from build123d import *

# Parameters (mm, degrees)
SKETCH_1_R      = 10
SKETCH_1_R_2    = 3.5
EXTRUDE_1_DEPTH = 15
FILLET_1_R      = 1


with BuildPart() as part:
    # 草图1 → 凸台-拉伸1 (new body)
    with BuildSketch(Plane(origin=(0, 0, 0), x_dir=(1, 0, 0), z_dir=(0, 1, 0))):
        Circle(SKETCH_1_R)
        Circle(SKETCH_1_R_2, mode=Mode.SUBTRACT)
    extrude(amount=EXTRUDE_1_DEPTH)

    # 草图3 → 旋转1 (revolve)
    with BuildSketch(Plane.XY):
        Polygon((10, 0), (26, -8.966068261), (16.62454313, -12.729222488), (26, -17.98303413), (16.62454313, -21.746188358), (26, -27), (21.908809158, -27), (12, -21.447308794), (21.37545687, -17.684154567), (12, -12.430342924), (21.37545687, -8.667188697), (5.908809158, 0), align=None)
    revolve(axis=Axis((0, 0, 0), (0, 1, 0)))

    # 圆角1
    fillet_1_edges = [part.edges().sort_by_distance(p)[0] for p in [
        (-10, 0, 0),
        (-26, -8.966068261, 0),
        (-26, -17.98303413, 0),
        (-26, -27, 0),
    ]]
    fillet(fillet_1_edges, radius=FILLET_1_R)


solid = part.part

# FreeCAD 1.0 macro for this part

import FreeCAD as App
import Part
import Sketcher


def edges_at(feature, points):
    """Names of the edges that pass closest to the given points."""
    edges = feature.Shape.Edges
    near = lambda p: min(range(len(edges)), key=lambda i: edges[i].distToShape(Part.Vertex(*p))[0])
    return sorted({f"Edge{near(p) + 1}" for p in points})


def add_polygon(sketch, points):
    """Adds a closed chain of lines whose ends are joined by coincident constraints."""
    first, n = sketch.GeometryCount, len(points)
    for a, b in zip(points, points[1:] + points[:1]):
        sketch.addGeometry(Part.LineSegment(App.Vector(*a, 0), App.Vector(*b, 0)), False)
    for i in range(n):
        sketch.addConstraint(Sketcher.Constraint("Coincident", first + i, 2, first + (i + 1) % n, 1))

doc = App.newDocument("Part")
params = doc.addObject("Spreadsheet::Sheet", "Params")
for row, (alias, value) in enumerate([
    ("sketch1_diameter", "20 mm"),
    ("sketch1_diameter2", "7 mm"),
    ("pad1_length", "15 mm"),
    ("revolution_angle", "360 deg"),
    ("fillet_radius", "1 mm"),
], start=1):
    params.set(f"A{row}", alias)
    params.set(f"B{row}", "=" + value)
    params.setAlias(f"B{row}", alias)

body = doc.addObject("PartDesign::Body", "Body")

sketch1 = body.newObject("Sketcher::SketchObject", "Sketch")
sketch1.AttachmentSupport = (doc.getObject("XZ_Plane"), [""])
sketch1.MapMode = "FlatFace"
sketch1.addGeometry([
    Part.Circle(App.Vector(0, 0, 0), App.Vector(0, 0, 1), 10),
    Part.Circle(App.Vector(0, 0, 0), App.Vector(0, 0, 1), 3.5),
], False)
sketch1.addConstraint([
    Sketcher.Constraint("Coincident", 0, 3, -1, 1),
    Sketcher.Constraint("Coincident", 1, 3, -1, 1),
    Sketcher.Constraint("Diameter", 0, 20.0),
    Sketcher.Constraint("Diameter", 1, 7.0),
])
sketch1.setExpression("Constraints[2]", "Params.sketch1_diameter")
sketch1.setExpression("Constraints[3]", "Params.sketch1_diameter2")
pad1 = body.newObject("PartDesign::Pad", "Pad")
pad1.Profile = sketch1
pad1.setExpression("Length", "Params.pad1_length")
pad1.Reversed = True

sketch2 = body.newObject("Sketcher::SketchObject", "Sketch001")
sketch2.AttachmentSupport = (doc.getObject("XY_Plane"), [""])
sketch2.MapMode = "FlatFace"
add_polygon(sketch2, [(26, -8.966068), (10, 0), (5.908809, 0), (21.375457, -8.667189), (12, -12.430343), (21.375457, -17.684155), (12, -21.447309), (21.908809, -27), (26, -27), (16.624543, -21.746188), (26, -17.983034), (16.624543, -12.729222)])
sketch2.addConstraint([
    Sketcher.Constraint("Horizontal", 1),
    Sketcher.Constraint("Horizontal", 7),
    Sketcher.Constraint("PointOnObject", 0, 2, -1),
    Sketcher.Constraint("Parallel", 0, 2),
    Sketcher.Constraint("Parallel", 2, 4),
    Sketcher.Constraint("Parallel", 3, 5),
    Sketcher.Constraint("Parallel", 4, 6),
    Sketcher.Constraint("Parallel", 6, 8),
    Sketcher.Constraint("Parallel", 5, 9),
    Sketcher.Constraint("Parallel", 8, 10),
    Sketcher.Constraint("Parallel", 9, 11),
    Sketcher.Constraint("Vertical", 2, 2, 4, 2),
    Sketcher.Constraint("Vertical", 3, 2, 5, 2),
    Sketcher.Constraint("Vertical", 7, 2, 9, 2),
    Sketcher.Constraint("Vertical", 8, 2, 10, 2),
    Sketcher.Constraint("Vertical", 9, 2, 11, 2),
    Sketcher.Constraint("Equal", 1, 7),
    Sketcher.Constraint("DistanceX", -1, 1, 0, 2, 10.0),
    Sketcher.Constraint("DistanceX", -1, 1, 3, 2, 12.0),
    Sketcher.Constraint("DistanceY", 6, 2, -1, 1, 27.0),
    Sketcher.Constraint("DistanceX", -1, 1, 7, 2, 26.0),
    Sketcher.Constraint("Distance", 3, 10.102501),
    Sketcher.Constraint("DistanceX", 1, 2, 1, 1, 4.091191),
    Sketcher.Constraint("Distance", 0, 18.340948),
])
revolution = body.newObject("PartDesign::Revolution", "Revolution")
revolution.Profile = sketch2
revolution.ReferenceAxis = (sketch2, ["V_Axis"])
revolution.setExpression("Angle", "Params.revolution_angle")
doc.recompute()

fillet = body.newObject("PartDesign::Fillet", "Fillet")
fillet.Base = (revolution, edges_at(revolution, [
    (-10, 0, 0),
    (-26, -8.966, 0),
    (-26, -17.983, 0),
    (-26, -27, 0),
]))
fillet.setExpression("Radius", "Params.fillet_radius")

doc.recompute()
